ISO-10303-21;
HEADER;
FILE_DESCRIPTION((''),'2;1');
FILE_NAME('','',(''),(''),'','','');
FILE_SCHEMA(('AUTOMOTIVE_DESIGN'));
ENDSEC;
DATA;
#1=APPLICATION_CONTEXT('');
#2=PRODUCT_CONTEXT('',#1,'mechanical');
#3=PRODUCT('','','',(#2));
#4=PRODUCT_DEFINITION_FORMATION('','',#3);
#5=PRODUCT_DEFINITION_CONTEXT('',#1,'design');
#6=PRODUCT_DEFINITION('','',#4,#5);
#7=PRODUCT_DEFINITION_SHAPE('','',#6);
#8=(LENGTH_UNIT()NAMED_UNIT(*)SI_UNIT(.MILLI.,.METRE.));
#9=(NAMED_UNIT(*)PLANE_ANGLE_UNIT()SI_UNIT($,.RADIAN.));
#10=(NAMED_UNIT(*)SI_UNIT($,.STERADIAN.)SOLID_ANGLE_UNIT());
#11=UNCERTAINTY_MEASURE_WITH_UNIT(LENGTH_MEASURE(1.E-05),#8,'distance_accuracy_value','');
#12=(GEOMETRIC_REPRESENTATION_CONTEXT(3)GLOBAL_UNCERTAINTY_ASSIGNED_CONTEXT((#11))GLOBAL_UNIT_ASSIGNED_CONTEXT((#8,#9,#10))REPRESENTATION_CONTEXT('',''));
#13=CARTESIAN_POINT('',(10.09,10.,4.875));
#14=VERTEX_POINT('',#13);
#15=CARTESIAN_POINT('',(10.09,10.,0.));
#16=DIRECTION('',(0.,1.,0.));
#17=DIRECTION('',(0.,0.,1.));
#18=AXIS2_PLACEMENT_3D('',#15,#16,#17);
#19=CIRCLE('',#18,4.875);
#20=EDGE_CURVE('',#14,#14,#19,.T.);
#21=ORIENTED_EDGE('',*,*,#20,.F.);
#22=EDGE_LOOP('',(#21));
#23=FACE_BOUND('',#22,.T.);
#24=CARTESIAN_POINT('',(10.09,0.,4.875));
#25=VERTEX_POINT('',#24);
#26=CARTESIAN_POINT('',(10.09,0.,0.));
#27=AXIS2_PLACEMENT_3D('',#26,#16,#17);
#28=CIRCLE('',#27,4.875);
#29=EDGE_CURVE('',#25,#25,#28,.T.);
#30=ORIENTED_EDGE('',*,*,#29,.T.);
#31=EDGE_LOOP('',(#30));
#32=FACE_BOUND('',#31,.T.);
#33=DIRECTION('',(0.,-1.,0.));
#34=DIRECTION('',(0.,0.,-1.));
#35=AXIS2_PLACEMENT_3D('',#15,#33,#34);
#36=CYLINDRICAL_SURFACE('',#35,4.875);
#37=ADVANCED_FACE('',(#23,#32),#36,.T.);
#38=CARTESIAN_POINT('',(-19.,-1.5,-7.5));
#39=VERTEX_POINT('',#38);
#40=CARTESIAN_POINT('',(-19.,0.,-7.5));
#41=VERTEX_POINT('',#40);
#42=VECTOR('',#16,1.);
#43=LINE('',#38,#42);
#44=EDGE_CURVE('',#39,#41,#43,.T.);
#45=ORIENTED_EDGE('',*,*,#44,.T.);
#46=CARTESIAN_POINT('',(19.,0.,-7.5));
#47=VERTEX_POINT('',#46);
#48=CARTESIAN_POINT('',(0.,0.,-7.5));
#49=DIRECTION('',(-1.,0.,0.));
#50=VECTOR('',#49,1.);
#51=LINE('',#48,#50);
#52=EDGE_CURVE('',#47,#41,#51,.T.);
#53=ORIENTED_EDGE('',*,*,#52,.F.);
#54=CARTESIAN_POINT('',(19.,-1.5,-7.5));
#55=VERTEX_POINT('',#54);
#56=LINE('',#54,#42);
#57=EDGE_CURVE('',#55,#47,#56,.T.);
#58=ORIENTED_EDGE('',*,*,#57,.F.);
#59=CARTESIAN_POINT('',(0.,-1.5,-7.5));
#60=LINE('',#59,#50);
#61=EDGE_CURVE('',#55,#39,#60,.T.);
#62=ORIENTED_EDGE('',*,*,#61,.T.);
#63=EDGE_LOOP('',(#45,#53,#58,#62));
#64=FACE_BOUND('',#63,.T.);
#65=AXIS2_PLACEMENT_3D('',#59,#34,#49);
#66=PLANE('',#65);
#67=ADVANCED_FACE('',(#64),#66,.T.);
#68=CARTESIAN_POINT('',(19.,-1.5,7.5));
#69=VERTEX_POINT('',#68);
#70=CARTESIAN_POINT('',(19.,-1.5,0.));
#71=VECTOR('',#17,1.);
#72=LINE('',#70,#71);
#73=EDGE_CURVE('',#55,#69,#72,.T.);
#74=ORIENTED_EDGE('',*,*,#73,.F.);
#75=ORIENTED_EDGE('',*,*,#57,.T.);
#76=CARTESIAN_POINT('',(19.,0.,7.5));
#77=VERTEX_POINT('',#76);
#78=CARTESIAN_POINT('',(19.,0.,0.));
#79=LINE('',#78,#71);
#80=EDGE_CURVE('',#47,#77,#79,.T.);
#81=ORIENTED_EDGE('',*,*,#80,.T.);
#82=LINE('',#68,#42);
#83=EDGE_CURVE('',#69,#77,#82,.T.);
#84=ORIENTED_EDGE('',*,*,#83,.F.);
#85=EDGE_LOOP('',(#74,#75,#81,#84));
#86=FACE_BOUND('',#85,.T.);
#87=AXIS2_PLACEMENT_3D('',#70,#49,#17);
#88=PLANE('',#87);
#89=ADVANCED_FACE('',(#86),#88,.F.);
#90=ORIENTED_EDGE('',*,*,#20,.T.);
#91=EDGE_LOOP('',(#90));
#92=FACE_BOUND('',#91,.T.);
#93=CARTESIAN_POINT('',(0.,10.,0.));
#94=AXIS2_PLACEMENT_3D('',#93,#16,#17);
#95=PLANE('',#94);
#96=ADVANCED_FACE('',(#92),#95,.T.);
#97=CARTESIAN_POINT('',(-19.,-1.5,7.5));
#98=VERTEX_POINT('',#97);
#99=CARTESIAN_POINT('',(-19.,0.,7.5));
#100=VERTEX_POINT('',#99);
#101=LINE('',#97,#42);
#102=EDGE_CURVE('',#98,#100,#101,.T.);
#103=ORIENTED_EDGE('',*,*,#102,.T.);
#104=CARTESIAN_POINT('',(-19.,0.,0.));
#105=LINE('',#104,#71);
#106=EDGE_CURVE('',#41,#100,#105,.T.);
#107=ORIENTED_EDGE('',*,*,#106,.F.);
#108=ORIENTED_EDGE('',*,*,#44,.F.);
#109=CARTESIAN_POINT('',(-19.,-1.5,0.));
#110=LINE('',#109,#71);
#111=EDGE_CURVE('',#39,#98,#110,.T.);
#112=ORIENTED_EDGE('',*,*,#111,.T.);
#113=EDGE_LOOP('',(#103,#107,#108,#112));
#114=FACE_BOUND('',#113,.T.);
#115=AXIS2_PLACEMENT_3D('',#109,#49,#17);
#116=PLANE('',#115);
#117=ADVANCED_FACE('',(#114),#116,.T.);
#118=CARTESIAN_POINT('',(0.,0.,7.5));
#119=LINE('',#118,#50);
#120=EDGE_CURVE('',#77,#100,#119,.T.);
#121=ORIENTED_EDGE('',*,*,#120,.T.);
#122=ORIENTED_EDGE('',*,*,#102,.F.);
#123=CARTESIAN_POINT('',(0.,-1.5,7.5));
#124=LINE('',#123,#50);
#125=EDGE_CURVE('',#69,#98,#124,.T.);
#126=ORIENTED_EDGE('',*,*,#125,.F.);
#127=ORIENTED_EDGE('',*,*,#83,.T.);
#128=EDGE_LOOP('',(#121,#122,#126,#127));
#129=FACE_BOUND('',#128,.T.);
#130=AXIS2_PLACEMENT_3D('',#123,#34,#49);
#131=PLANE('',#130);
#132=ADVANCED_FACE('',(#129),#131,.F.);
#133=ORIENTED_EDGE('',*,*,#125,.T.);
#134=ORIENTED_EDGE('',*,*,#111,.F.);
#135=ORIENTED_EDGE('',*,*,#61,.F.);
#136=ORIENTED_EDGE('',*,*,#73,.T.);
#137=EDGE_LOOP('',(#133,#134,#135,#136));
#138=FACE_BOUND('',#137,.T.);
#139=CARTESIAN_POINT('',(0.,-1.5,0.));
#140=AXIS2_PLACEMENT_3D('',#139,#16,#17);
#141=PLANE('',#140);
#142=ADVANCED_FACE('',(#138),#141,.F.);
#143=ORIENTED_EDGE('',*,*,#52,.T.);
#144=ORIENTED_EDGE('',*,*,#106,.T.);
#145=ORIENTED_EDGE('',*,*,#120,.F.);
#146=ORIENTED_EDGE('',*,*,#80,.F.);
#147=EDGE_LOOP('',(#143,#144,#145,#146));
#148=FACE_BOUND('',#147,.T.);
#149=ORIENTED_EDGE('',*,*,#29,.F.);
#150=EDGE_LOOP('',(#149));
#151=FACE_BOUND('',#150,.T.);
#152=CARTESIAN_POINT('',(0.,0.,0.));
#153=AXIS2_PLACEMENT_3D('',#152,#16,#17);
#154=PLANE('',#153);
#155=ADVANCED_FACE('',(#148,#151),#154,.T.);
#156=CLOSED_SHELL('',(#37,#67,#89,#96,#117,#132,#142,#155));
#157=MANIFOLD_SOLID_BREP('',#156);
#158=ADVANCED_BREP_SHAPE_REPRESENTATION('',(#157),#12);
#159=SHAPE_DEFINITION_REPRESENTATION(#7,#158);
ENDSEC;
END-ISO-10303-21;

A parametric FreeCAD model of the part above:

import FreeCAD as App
import Part
import Sketcher
from FreeCAD import Vector

doc = App.newDocument("Part")
body = doc.addObject("PartDesign::Body", "Body")

# Sketch on XZ plane
sketch1 = doc.addObject("Sketcher::SketchObject", "Sketch")
body.addObject(sketch1)
sketch1.AttachmentSupport = (doc.XZ_Plane, [""])
sketch1.MapMode = "FlatFace"
sketch1.addGeometry([
    Part.LineSegment(Vector(-19, -8, 0), Vector(-19, 8, 0)),
    Part.LineSegment(Vector(-19, 8, 0), Vector(19, 8, 0)),
    Part.LineSegment(Vector(19, 8, 0), Vector(19, -8, 0)),
    Part.LineSegment(Vector(19, -8, 0), Vector(-19, -8, 0)),
], False)
sketch1.addConstraint([
    Sketcher.Constraint("Coincident", 0, 2, 1, 1),
    Sketcher.Constraint("Coincident", 1, 2, 2, 1),
    Sketcher.Constraint("Coincident", 2, 2, 3, 1),
    Sketcher.Constraint("Coincident", 3, 2, 0, 1),
    Sketcher.Constraint("Vertical", 0),
    Sketcher.Constraint("Horizontal", 1),
    Sketcher.Constraint("Vertical", 2),
    Sketcher.Constraint("Horizontal", 3),
    Sketcher.Constraint("Symmetric", 0, 2, 2, 2, -1, 1),
    Sketcher.Constraint("DistanceX", 1, 1, 1, 2, 38.0),
    Sketcher.Constraint("DistanceY", 0, 1, 0, 2, 15.0),
])
pad1 = doc.addObject("PartDesign::Pad", "Pad")
body.addObject(pad1)
pad1.Profile = sketch1
pad1.Length = 1.5

# Sketch on XZ plane
sketch2 = doc.addObject("Sketcher::SketchObject", "Sketch001")
body.addObject(sketch2)
sketch2.AttachmentSupport = (doc.XZ_Plane, [""])
sketch2.MapMode = "FlatFace"
sketch2.addGeometry(Part.Circle(Vector(10.1, 0, 0), Vector(0, 0, 1), 4.9), False)
sketch2.addConstraint([
    Sketcher.Constraint("PointOnObject", 0, 3, -1),
    Sketcher.Constraint("Diameter", 0, 9.75),
    Sketcher.Constraint("DistanceX", -1, 1, 0, 3, 10.09),
])
pad2 = doc.addObject("PartDesign::Pad", "Pad001")
body.addObject(pad2)
pad2.Profile = sketch2
pad2.Length = 10
pad2.Reversed = True

doc.recompute()
